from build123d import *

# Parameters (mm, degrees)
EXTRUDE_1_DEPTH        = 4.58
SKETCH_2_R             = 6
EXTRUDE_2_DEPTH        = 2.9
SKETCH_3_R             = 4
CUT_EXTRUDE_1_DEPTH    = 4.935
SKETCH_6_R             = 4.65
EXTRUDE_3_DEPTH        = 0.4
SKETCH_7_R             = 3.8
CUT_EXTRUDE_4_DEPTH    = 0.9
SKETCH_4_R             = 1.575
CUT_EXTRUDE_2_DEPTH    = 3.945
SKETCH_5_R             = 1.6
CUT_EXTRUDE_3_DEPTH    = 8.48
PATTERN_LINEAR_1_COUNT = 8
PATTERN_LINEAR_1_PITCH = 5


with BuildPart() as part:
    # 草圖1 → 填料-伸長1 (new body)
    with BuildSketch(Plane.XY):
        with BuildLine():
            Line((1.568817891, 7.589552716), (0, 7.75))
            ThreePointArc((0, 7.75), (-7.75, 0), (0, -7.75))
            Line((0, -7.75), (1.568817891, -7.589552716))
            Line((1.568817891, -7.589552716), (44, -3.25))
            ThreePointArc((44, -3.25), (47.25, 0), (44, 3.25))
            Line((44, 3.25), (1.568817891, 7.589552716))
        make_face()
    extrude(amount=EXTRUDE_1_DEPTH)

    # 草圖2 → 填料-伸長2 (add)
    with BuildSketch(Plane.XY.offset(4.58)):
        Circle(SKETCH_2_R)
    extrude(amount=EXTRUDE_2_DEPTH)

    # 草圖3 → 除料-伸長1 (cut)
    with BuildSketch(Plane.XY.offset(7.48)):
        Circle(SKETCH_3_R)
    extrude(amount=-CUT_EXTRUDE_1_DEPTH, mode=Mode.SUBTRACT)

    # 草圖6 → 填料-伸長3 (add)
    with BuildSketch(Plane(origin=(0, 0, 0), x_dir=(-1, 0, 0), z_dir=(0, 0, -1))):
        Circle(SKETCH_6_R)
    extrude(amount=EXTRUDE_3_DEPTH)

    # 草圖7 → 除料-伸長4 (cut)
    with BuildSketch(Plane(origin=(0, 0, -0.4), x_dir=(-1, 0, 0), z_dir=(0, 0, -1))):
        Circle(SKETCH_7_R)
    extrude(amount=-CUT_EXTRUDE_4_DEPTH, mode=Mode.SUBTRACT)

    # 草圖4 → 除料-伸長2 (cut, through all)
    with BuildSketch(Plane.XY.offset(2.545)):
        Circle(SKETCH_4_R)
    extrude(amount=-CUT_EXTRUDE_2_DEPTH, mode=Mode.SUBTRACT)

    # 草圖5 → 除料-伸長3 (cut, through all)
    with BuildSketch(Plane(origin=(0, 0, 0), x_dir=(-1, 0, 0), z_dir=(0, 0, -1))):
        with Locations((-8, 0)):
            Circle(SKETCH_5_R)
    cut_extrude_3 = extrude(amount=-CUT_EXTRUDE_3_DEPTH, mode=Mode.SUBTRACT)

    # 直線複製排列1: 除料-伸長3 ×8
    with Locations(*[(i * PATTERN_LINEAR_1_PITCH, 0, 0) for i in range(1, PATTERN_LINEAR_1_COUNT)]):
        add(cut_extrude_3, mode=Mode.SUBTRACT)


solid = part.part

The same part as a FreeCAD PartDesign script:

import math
import FreeCAD as App
import Part
import Sketcher

V = App.Vector
Q = App.Units.Quantity

doc = App.newDocument("Part")
body = doc.addObject("PartDesign::Body", "Body")

sketch1 = body.newObject("Sketcher::SketchObject", "Sketch")
sketch1.AttachmentSupport = (doc.getObject("XY_Plane"), [""])
sketch1.MapMode = "FlatFace"
sketch1.addGeometry([
    Part.LineSegment(V(1.6, 7.6, 0), V(0, 7.8, 0)),
    Part.ArcOfCircle(Part.Circle(V(0, 0, 0), V(0, 0, 1), 7.8), math.radians(90), math.radians(270)),
    Part.LineSegment(V(0, -7.8, 0), V(1.6, -7.6, 0)),
    Part.LineSegment(V(1.6, -7.6, 0), V(44, -3.2, 0)),
    Part.ArcOfCircle(Part.Circle(V(44, 0, 0), V(0, 0, 1), 3.2), math.radians(-90), math.radians(90)),
    Part.LineSegment(V(44, 3.2, 0), V(1.6, 7.6, 0)),
], False)
sketch1.addConstraint([
    Sketcher.Constraint("Coincident", 0, 2, 1, 1),
    Sketcher.Constraint("Coincident", 1, 2, 2, 1),
    Sketcher.Constraint("Coincident", 2, 2, 3, 1),
    Sketcher.Constraint("Coincident", 3, 2, 4, 1),
    Sketcher.Constraint("Coincident", 4, 2, 5, 1),
    Sketcher.Constraint("Coincident", 5, 2, 0, 1),
    Sketcher.Constraint("Coincident", 1, 3, -1, 1),
    Sketcher.Constraint("Symmetric", 3, 2, 4, 2, -1),
    Sketcher.Constraint("Symmetric", 2, 2, 5, 2, -1),
    Sketcher.Constraint("PointOnObject", 0, 2, -2),
    Sketcher.Constraint("PointOnObject", 1, 2, -2),
    Sketcher.Constraint("Parallel", 2, 3),
    Sketcher.Constraint("Vertical", 4, 3, 3, 2),
    Sketcher.Constraint("Radius", 1, Q("7.75 mm")),
    Sketcher.Constraint("Radius", 4, Q("3.25 mm")),
    Sketcher.Constraint("DistanceX", -1, 1, 4, 3, Q("44 mm")),
    Sketcher.Constraint("Distance", 0, Q("1.577001 mm")),
])
pad1 = body.newObject("PartDesign::Pad", "Pad")
pad1.Profile = sketch1
pad1.Length = 4.58

sketch2 = body.newObject("Sketcher::SketchObject", "Sketch001")
sketch2.AttachmentSupport = (doc.getObject("XY_Plane"), [""])
sketch2.MapMode = "FlatFace"
sketch2.AttachmentOffset = App.Placement(V(0, 0, 4.58), App.Rotation())
sketch2.addGeometry(Part.Circle(V(0, 0, 0), V(0, 0, 1), 6), False)
sketch2.addConstraint([
    Sketcher.Constraint("Coincident", 0, 3, -1, 1),
    Sketcher.Constraint("Diameter", 0, Q("12 mm")),
])
pad2 = body.newObject("PartDesign::Pad", "Pad001")
pad2.Profile = sketch2
pad2.Length = 2.9

sketch3 = body.newObject("Sketcher::SketchObject", "Sketch002")
sketch3.AttachmentSupport = (doc.getObject("XY_Plane"), [""])
sketch3.MapMode = "FlatFace"
sketch3.AttachmentOffset = App.Placement(V(0, 0, 7.48), App.Rotation())
sketch3.addGeometry(Part.Circle(V(0, 0, 0), V(0, 0, 1), 4), False)
sketch3.addConstraint([
    Sketcher.Constraint("Coincident", 0, 3, -1, 1),
    Sketcher.Constraint("Diameter", 0, Q("8 mm")),
])
pocket1 = body.newObject("PartDesign::Pocket", "Pocket")
pocket1.Profile = sketch3
pocket1.Length = 4.935

sketch4 = body.newObject("Sketcher::SketchObject", "Sketch003")
sketch4.AttachmentSupport = (doc.getObject("XY_Plane"), [""])
sketch4.MapMode = "FlatFace"
sketch4.addGeometry(Part.Circle(V(0, 0, 0), V(0, 0, 1), 4.7), False)
sketch4.addConstraint([
    Sketcher.Constraint("Coincident", 0, 3, -1, 1),
    Sketcher.Constraint("Diameter", 0, Q("9.3 mm")),
])
pad3 = body.newObject("PartDesign::Pad", "Pad002")
pad3.Profile = sketch4
pad3.Length = 0.4
pad3.Reversed = True

sketch5 = body.newObject("Sketcher::SketchObject", "Sketch004")
sketch5.AttachmentSupport = (doc.getObject("XY_Plane"), [""])
sketch5.MapMode = "FlatFace"
sketch5.AttachmentOffset = App.Placement(V(0, 0, -0.4), App.Rotation())
sketch5.addGeometry(Part.Circle(V(0, 0, 0), V(0, 0, 1), 3.8), False)
sketch5.addConstraint([
    Sketcher.Constraint("Coincident", 0, 3, -1, 1),
    Sketcher.Constraint("Diameter", 0, Q("7.6 mm")),
])
pocket2 = body.newObject("PartDesign::Pocket", "Pocket001")
pocket2.Profile = sketch5
pocket2.Length = 0.9
pocket2.Reversed = True

sketch6 = body.newObject("Sketcher::SketchObject", "Sketch005")
sketch6.AttachmentSupport = (doc.getObject("XY_Plane"), [""])
sketch6.MapMode = "FlatFace"
sketch6.AttachmentOffset = App.Placement(V(0, 0, 2.545), App.Rotation())
sketch6.addGeometry(Part.Circle(V(0, 0, 0), V(0, 0, 1), 1.6), False)
sketch6.addConstraint([
    Sketcher.Constraint("Coincident", 0, 3, -1, 1),
    Sketcher.Constraint("Diameter", 0, Q("3.15 mm")),
])
pocket3 = body.newObject("PartDesign::Pocket", "Pocket002")
pocket3.Profile = sketch6
pocket3.Type = "ThroughAll"

sketch7 = body.newObject("Sketcher::SketchObject", "Sketch006")
sketch7.AttachmentSupport = (doc.getObject("XY_Plane"), [""])
sketch7.MapMode = "FlatFace"
sketch7.addGeometry(Part.Circle(V(8, 0, 0), V(0, 0, 1), 1.6), False)
sketch7.addConstraint([
    Sketcher.Constraint("PointOnObject", 0, 3, -1),
    Sketcher.Constraint("Diameter", 0, Q("3.2 mm")),
    Sketcher.Constraint("DistanceX", -1, 1, 0, 3, Q("8 mm")),
])
pocket4 = body.newObject("PartDesign::Pocket", "Pocket003")
pocket4.Profile = sketch7
pocket4.Type = "ThroughAll"
pocket4.Reversed = True
doc.recompute()

linearpattern = body.newObject("PartDesign::LinearPattern", "LinearPattern")
linearpattern.Originals = [pocket4]
linearpattern.Direction = (doc.getObject("X_Axis"), [""])
linearpattern.Mode = "offset"
linearpattern.Offset = 5
linearpattern.Occurrences = 8
body.Tip = linearpattern

doc.recompute()
